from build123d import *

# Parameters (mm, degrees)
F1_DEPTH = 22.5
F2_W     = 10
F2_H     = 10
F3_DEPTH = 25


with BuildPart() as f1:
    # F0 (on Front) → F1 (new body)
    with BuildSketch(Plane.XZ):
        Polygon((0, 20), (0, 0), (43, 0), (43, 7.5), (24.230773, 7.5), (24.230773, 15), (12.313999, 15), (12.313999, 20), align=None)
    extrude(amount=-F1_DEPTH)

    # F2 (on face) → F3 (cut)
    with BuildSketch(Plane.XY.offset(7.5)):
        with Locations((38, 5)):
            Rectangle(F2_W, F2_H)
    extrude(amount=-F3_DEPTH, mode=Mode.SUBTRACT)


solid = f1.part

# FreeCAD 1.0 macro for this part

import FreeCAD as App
import Part
import Sketcher

doc = App.newDocument("Part")
params = doc.addObject("Spreadsheet::Sheet", "Params")
for row, (alias, value) in enumerate([
    ("sketch1_width", "43 mm"),
    ("sketch1_height", "20 mm"),
    ("sketch1_height2", "5 mm"),
    ("pad1_length", "22.5 mm"),
    ("sketch2_width", "10 mm"),
    ("pocket1_length", "25 mm"),
], start=1):
    params.set(f"A{row}", alias)
    params.set(f"B{row}", "=" + value)
    params.setAlias(f"B{row}", alias)

body = doc.addObject("PartDesign::Body", "Body")

# Sketch on XZ plane
sketch1 = body.newObject("Sketcher::SketchObject", "Sketch")
sketch1.AttachmentSupport = (doc.getObject("XZ_Plane"), [""])
sketch1.MapMode = "FlatFace"
sketch1.addGeometry([
    Part.LineSegment(App.Vector(0, 20, 0), App.Vector(0, 0, 0)),  # 0
    Part.LineSegment(App.Vector(0, 0, 0), App.Vector(43, 0, 0)),  # 1
    Part.LineSegment(App.Vector(43, 0, 0), App.Vector(43, 7.5, 0)),  # 2
    Part.LineSegment(App.Vector(43, 7.5, 0), App.Vector(24.230773, 7.5, 0)),  # 3
    Part.LineSegment(App.Vector(24.230773, 7.5, 0), App.Vector(24.230773, 15, 0)),  # 4
    Part.LineSegment(App.Vector(24.230773, 15, 0), App.Vector(12.313999, 15, 0)),  # 5
    Part.LineSegment(App.Vector(12.313999, 15, 0), App.Vector(12.313999, 20, 0)),  # 6
    Part.LineSegment(App.Vector(12.313999, 20, 0), App.Vector(0, 20, 0)),  # 7
], False)
sketch1.addConstraint([
    Sketcher.Constraint("Coincident", 0, 2, 1, 1),
    Sketcher.Constraint("Coincident", 1, 2, 2, 1),
    Sketcher.Constraint("Coincident", 2, 2, 3, 1),
    Sketcher.Constraint("Coincident", 3, 2, 4, 1),
    Sketcher.Constraint("Coincident", 4, 2, 5, 1),
    Sketcher.Constraint("Coincident", 5, 2, 6, 1),
    Sketcher.Constraint("Coincident", 6, 2, 7, 1),
    Sketcher.Constraint("Coincident", 7, 2, 0, 1),
    Sketcher.Constraint("Vertical", 0),
    Sketcher.Constraint("Horizontal", 1),
    Sketcher.Constraint("Vertical", 2),
    Sketcher.Constraint("Horizontal", 3),
    Sketcher.Constraint("Vertical", 4),
    Sketcher.Constraint("Horizontal", 5),
    Sketcher.Constraint("Vertical", 6),
    Sketcher.Constraint("Horizontal", 7),
    Sketcher.Constraint("Coincident", 0, 2, -1, 1),
    Sketcher.Constraint("Equal", 2, 4),
    Sketcher.Constraint("DistanceX", 1, 1, 1, 2, 43.0),
    Sketcher.Constraint("DistanceY", 0, 2, 0, 1, 20.0),
    Sketcher.Constraint("DistanceY", 6, 1, 6, 2, 5.0),
    Sketcher.Constraint("DistanceX", 7, 2, 7, 1, 12.313999),
    Sketcher.Constraint("DistanceX", 3, 2, 3, 1, 18.769227),
])
sketch1.setExpression("Constraints[18]", "Params.sketch1_width")
sketch1.setExpression("Constraints[19]", "Params.sketch1_height")
sketch1.setExpression("Constraints[20]", "Params.sketch1_height2")
pad1 = body.newObject("PartDesign::Pad", "Pad")
pad1.Profile = sketch1
pad1.setExpression("Length", "Params.pad1_length")
pad1.Reversed = True

# Sketch on XY plane
sketch2 = body.newObject("Sketcher::SketchObject", "Sketch001")
sketch2.AttachmentSupport = (doc.getObject("XY_Plane"), [""])
sketch2.MapMode = "FlatFace"
sketch2.AttachmentOffset = App.Placement(App.Vector(0, 0, 7.5), App.Rotation())
sketch2.addGeometry([
    Part.LineSegment(App.Vector(33, 10, 0), App.Vector(33, 0, 0)),
    Part.LineSegment(App.Vector(33, 0, 0), App.Vector(43, 0, 0)),
    Part.LineSegment(App.Vector(43, 0, 0), App.Vector(43, 10, 0)),
    Part.LineSegment(App.Vector(43, 10, 0), App.Vector(33, 10, 0)),
], False)
sketch2.addConstraint([
    Sketcher.Constraint("Coincident", 0, 2, 1, 1),
    Sketcher.Constraint("Coincident", 1, 2, 2, 1),
    Sketcher.Constraint("Coincident", 2, 2, 3, 1),
    Sketcher.Constraint("Coincident", 3, 2, 0, 1),
    Sketcher.Constraint("Vertical", 0),
    Sketcher.Constraint("Horizontal", 1),
    Sketcher.Constraint("Vertical", 2),
    Sketcher.Constraint("Horizontal", 3),
    Sketcher.Constraint("PointOnObject", 0, 2, -1),
    Sketcher.Constraint("Equal", 3, 0),
    Sketcher.Constraint("DistanceX", 1, 1, 1, 2, 10.0),
    Sketcher.Constraint("DistanceX", -1, 1, 0, 2, 33.0),
])
sketch2.setExpression("Constraints[10]", "Params.sketch2_width")
pocket1 = body.newObject("PartDesign::Pocket", "Pocket")
pocket1.Profile = sketch2
pocket1.setExpression("Length", "Params.pocket1_length")

doc.recompute()
